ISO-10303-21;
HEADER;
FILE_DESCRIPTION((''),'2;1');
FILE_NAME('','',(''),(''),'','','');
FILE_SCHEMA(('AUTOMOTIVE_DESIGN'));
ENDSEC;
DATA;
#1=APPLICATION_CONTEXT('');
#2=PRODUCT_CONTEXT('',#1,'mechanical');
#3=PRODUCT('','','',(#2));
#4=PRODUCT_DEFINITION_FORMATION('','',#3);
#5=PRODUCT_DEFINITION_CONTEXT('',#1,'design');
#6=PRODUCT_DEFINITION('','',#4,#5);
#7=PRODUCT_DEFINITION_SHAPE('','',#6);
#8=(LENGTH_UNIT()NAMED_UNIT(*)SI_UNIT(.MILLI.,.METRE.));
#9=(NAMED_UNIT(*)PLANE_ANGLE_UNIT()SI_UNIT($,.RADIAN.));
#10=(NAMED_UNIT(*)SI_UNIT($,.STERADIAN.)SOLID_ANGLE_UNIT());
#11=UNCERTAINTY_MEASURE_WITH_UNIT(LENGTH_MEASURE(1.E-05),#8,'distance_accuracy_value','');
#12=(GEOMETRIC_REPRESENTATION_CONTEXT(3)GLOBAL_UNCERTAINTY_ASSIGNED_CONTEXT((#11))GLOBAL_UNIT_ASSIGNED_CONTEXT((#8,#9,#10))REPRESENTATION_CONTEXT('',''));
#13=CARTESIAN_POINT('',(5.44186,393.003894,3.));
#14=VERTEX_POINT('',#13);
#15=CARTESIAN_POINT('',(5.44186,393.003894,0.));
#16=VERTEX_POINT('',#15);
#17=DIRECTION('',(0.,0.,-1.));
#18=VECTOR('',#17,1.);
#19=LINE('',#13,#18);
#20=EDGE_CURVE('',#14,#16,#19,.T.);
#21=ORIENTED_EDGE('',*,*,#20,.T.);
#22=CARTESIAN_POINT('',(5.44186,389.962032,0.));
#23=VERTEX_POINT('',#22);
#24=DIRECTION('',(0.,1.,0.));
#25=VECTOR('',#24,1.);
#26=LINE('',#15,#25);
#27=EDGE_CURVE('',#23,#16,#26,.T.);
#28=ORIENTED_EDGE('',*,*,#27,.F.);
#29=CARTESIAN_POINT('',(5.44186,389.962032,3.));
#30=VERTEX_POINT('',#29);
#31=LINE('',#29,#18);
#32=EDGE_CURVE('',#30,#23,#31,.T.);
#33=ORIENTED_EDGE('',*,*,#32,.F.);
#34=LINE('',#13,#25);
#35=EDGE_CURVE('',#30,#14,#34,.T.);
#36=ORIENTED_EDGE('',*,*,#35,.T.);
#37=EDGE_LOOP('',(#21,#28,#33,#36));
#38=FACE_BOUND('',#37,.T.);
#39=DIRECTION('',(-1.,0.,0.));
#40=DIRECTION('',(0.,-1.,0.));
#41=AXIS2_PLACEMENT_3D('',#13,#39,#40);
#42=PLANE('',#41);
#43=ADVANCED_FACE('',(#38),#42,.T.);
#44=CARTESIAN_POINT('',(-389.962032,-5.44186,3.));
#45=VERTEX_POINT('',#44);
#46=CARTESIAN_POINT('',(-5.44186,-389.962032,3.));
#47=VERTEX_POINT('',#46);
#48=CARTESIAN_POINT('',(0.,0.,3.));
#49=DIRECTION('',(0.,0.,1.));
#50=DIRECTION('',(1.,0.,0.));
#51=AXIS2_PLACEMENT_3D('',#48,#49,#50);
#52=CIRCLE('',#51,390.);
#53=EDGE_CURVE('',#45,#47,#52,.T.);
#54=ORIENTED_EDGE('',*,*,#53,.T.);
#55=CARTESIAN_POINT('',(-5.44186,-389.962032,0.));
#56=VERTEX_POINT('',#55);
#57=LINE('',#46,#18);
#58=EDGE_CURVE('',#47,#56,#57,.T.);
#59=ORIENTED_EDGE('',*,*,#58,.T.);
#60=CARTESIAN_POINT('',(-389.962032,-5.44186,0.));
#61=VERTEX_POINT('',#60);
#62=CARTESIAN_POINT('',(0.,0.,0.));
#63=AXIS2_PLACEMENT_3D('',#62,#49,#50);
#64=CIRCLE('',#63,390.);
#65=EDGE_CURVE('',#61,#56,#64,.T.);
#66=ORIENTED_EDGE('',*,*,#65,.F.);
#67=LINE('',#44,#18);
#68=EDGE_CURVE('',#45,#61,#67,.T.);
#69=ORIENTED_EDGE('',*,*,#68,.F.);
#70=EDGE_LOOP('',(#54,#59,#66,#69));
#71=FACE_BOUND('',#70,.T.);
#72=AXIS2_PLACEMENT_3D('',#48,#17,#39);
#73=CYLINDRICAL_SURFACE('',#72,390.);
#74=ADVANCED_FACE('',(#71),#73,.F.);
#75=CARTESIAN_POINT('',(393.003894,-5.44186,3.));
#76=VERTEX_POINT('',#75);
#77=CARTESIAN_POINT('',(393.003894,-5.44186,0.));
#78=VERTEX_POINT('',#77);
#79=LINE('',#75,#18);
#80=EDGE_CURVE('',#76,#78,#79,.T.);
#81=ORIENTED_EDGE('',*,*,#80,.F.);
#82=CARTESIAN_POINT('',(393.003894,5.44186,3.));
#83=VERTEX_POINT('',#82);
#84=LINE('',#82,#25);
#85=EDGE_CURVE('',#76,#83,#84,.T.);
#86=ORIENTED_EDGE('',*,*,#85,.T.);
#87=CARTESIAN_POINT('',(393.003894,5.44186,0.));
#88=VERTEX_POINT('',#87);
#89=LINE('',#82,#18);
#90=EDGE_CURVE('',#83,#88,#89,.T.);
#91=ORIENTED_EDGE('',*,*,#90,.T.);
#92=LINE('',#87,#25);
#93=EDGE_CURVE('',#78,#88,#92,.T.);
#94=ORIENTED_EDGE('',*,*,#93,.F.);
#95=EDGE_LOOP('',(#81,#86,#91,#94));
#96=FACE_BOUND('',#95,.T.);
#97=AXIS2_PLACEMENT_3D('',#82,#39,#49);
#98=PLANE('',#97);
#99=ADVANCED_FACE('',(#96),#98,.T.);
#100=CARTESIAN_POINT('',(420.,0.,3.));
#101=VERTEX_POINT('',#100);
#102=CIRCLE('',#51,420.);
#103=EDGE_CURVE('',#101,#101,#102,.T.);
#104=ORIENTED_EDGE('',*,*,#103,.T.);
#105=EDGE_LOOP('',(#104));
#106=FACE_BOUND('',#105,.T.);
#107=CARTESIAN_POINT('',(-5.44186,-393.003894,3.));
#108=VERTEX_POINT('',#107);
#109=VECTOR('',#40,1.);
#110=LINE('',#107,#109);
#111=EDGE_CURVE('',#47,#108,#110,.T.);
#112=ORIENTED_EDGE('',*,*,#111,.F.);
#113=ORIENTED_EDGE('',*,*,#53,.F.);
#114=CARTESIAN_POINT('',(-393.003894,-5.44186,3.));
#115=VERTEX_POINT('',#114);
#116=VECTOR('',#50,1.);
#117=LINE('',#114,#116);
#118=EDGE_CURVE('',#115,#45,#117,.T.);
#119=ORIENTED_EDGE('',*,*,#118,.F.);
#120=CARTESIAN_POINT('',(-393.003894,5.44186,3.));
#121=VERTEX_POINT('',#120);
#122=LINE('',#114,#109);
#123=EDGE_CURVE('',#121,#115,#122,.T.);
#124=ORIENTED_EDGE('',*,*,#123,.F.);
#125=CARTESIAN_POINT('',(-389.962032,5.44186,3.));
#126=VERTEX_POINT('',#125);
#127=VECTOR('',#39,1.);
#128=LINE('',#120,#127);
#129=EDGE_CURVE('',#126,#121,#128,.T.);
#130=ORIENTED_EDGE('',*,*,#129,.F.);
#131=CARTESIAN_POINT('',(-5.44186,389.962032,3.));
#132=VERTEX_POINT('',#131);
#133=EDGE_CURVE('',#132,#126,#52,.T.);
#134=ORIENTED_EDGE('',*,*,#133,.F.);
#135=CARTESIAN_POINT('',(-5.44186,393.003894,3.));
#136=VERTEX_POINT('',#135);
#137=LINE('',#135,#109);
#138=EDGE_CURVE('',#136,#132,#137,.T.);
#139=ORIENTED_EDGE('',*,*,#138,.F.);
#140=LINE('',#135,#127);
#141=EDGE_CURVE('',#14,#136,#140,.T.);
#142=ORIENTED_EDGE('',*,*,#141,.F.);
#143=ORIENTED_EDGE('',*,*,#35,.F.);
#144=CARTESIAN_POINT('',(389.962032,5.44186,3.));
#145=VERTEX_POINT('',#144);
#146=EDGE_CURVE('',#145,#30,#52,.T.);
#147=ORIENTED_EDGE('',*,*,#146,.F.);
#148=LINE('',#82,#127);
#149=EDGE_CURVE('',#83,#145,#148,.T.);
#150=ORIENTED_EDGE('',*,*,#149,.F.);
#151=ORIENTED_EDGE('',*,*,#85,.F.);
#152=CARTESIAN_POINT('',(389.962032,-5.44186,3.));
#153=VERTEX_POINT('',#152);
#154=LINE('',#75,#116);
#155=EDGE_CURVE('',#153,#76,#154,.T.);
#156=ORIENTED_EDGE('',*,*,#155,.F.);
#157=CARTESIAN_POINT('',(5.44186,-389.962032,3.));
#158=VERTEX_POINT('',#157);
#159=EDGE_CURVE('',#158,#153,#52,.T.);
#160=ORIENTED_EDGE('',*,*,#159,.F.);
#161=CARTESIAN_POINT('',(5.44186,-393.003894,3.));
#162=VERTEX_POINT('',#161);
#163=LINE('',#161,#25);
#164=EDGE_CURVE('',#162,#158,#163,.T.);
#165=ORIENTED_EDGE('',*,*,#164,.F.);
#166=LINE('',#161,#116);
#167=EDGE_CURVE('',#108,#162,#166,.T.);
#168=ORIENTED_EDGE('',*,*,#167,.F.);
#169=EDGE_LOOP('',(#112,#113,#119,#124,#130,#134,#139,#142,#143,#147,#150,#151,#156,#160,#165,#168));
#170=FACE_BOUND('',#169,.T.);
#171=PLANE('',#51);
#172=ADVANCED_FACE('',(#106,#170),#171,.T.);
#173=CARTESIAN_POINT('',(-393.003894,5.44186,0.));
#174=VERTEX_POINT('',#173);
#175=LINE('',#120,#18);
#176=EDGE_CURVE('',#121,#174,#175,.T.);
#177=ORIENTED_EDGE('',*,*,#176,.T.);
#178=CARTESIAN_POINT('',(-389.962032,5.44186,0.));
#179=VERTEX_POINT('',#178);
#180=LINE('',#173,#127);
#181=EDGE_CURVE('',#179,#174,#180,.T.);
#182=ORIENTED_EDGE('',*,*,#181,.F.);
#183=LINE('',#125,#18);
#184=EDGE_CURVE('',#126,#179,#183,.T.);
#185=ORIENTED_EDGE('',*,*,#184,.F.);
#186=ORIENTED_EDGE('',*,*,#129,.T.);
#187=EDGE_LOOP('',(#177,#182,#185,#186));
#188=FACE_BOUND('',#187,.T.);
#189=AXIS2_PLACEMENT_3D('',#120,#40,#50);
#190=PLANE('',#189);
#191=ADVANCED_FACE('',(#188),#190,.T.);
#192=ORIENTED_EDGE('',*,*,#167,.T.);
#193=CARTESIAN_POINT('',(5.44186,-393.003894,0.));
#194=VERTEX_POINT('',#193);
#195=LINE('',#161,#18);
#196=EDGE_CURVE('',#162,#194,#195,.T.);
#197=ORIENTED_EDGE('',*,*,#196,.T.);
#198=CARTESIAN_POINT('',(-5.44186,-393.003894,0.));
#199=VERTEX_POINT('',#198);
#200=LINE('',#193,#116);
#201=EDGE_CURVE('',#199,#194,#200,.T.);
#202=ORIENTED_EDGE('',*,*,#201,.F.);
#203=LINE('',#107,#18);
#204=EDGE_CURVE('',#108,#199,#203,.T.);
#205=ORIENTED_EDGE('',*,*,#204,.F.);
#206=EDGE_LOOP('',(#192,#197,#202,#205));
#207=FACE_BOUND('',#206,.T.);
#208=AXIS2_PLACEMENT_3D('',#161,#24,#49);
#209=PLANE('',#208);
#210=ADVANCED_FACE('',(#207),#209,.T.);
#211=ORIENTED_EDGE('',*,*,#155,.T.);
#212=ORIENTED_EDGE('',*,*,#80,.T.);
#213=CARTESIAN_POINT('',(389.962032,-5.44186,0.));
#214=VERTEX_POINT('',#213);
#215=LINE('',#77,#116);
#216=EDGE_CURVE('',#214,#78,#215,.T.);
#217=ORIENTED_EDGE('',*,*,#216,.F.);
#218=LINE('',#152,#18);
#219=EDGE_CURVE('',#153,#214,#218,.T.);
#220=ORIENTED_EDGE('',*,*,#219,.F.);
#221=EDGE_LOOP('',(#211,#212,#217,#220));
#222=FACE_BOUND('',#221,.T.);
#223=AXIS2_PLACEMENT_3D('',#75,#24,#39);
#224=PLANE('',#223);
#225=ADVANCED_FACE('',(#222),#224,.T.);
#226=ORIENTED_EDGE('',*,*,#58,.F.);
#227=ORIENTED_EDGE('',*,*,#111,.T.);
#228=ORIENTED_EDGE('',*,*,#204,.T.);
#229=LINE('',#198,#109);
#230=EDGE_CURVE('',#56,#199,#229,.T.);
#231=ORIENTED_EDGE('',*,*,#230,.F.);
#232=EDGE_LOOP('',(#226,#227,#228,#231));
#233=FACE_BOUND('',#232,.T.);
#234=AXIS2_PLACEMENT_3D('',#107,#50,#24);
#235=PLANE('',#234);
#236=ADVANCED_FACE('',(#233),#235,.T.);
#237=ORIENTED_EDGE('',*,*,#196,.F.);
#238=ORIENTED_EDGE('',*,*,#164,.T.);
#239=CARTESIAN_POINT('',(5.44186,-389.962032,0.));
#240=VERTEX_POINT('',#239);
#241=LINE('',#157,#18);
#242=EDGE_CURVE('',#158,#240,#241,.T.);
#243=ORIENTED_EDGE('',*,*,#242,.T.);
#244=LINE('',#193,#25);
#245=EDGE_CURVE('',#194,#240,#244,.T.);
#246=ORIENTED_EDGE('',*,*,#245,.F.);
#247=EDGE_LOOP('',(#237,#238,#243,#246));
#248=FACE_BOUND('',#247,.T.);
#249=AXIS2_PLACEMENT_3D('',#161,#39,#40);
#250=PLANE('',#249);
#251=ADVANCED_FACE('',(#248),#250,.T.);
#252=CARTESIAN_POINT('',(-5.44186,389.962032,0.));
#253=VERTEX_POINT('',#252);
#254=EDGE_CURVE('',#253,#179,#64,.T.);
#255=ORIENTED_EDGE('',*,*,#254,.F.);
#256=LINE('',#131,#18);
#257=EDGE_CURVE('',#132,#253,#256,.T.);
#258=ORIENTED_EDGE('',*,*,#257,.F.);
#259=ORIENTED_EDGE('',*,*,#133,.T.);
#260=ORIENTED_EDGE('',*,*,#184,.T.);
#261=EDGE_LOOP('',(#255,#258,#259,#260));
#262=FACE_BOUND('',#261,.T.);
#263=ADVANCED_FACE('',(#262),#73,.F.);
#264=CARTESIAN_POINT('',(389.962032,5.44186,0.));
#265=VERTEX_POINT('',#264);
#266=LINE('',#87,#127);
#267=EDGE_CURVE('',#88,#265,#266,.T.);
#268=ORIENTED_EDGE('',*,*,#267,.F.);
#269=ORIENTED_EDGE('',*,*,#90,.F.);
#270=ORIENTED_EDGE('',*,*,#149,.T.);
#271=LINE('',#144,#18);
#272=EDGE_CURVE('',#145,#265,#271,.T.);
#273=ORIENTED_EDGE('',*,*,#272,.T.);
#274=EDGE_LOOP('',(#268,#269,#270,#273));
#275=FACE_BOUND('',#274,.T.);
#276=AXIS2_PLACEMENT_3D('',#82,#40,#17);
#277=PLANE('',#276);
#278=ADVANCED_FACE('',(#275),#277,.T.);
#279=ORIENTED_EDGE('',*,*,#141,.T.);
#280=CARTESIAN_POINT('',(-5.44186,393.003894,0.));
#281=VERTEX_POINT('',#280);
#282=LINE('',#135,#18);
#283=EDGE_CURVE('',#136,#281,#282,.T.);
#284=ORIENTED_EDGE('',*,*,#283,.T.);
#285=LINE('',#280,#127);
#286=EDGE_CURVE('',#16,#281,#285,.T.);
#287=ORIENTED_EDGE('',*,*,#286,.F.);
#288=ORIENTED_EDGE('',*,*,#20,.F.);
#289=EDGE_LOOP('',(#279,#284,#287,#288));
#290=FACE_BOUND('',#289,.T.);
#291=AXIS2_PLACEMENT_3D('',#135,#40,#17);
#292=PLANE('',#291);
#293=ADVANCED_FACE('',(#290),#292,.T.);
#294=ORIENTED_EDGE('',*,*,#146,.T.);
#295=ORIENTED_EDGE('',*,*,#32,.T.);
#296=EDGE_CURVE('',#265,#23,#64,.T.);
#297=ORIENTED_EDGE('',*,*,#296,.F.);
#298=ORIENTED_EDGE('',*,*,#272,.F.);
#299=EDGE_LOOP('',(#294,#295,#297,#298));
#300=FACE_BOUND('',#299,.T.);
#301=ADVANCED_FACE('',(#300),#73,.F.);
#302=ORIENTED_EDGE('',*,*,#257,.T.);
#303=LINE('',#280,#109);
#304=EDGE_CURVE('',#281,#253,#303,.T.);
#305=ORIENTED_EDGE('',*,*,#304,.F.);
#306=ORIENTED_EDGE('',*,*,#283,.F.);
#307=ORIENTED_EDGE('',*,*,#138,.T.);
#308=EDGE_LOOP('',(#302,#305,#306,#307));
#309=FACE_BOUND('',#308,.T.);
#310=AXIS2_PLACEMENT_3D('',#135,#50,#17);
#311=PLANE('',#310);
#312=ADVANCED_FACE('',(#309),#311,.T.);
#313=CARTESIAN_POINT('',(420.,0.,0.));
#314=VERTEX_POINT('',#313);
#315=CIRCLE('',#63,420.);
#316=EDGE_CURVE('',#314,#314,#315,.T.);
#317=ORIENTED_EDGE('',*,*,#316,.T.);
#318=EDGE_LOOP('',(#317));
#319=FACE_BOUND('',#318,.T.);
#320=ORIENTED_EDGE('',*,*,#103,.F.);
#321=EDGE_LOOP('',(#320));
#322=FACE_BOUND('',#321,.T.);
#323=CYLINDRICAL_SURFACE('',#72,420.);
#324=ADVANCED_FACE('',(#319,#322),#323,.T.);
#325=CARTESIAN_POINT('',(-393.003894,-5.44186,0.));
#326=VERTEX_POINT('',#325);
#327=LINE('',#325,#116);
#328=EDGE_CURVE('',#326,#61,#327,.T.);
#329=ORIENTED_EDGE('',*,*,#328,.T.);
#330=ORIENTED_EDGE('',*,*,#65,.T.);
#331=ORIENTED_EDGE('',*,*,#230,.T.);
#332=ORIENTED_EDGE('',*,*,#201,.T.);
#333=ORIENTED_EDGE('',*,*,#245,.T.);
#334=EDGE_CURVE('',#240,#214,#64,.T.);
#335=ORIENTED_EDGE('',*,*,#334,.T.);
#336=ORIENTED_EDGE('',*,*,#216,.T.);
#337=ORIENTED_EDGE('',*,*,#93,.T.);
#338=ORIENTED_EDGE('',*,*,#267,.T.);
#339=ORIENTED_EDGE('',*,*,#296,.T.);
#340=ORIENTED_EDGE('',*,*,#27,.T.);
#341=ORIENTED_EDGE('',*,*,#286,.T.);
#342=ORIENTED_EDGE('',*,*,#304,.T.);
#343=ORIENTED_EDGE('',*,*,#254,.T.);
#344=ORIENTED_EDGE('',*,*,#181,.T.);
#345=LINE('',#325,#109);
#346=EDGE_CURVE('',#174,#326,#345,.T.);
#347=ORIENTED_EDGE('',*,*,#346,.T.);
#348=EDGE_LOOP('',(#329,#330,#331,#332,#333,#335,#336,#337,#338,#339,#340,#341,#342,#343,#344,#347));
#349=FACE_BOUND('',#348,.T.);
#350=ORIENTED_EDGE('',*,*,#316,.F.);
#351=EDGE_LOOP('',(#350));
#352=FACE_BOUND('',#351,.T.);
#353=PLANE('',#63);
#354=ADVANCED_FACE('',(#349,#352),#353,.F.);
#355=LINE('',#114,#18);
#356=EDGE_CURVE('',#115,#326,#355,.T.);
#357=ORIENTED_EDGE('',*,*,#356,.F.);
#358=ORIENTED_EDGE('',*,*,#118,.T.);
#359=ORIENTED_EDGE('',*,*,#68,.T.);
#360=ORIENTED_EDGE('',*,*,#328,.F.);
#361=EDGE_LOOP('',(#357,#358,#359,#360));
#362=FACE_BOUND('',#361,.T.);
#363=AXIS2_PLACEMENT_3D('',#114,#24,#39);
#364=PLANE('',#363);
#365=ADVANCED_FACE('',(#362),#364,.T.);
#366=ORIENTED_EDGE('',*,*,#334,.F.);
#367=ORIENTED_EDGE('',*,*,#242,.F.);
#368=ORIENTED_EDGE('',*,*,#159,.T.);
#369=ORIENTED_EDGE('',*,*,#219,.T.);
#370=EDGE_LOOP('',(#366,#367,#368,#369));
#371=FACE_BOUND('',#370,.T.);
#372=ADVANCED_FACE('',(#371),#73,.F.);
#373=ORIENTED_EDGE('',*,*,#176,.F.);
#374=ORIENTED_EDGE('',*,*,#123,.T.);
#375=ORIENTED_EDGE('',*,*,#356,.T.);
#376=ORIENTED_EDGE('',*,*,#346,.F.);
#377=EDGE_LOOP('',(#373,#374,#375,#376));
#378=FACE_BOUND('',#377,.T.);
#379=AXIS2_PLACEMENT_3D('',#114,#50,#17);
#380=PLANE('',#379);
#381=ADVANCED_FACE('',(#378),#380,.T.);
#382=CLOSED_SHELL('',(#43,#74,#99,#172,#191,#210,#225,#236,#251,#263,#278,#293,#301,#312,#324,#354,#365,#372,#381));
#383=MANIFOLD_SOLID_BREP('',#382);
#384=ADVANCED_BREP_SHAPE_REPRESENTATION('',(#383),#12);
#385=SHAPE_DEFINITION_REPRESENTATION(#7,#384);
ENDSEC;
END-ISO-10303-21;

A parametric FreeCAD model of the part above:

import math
import FreeCAD as App
import Part
import Sketcher

doc = App.newDocument("Part")
params = doc.addObject("Spreadsheet::Sheet", "Params")
for row, (alias, value) in enumerate([
    ("sketch1_diameter", "840 mm"),
    ("sketch1_radius", "390 mm"),
    ("pad1_length", "3 mm"),
], start=1):
    params.set(f"A{row}", alias)
    params.set(f"B{row}", "=" + value)
    params.setAlias(f"B{row}", alias)

body = doc.addObject("PartDesign::Body", "Body")

# Sketch on XY plane
sketch1 = body.newObject("Sketcher::SketchObject", "Sketch")
sketch1.AttachmentSupport = (doc.getObject("XY_Plane"), [""])
sketch1.MapMode = "FlatFace"
sketch1.addGeometry([
    Part.Circle(App.Vector(0, 0, 0), App.Vector(0, 0, 1), 420),  # 0
    Part.LineSegment(App.Vector(390, 5.4, 0), App.Vector(393, 5.4, 0)),  # 1
    Part.LineSegment(App.Vector(393, 5.4, 0), App.Vector(393, -5.4, 0)),  # 2
    Part.LineSegment(App.Vector(393, -5.4, 0), App.Vector(390, -5.4, 0)),  # 3
    Part.ArcOfCircle(Part.Circle(App.Vector(0, 0, 0), App.Vector(0, 0, 1), 390), math.radians(-89), math.radians(-1)),  # 4
    Part.LineSegment(App.Vector(5.4, -390, 0), App.Vector(5.4, -393, 0)),  # 5
    Part.LineSegment(App.Vector(5.4, -393, 0), App.Vector(-5.4, -393, 0)),  # 6
    Part.LineSegment(App.Vector(-5.4, -393, 0), App.Vector(-5.4, -390, 0)),  # 7
    Part.ArcOfCircle(Part.Circle(App.Vector(0, 0, 0), App.Vector(0, 0, 1), 390), math.radians(-179), math.radians(-91)),  # 8
    Part.LineSegment(App.Vector(-390, -5.4, 0), App.Vector(-393, -5.4, 0)),  # 9
    Part.LineSegment(App.Vector(-393, -5.4, 0), App.Vector(-393, 5.4, 0)),  # 10
    Part.LineSegment(App.Vector(-393, 5.4, 0), App.Vector(-390, 5.4, 0)),  # 11
    Part.ArcOfCircle(Part.Circle(App.Vector(0, 0, 0), App.Vector(0, 0, 1), 390), math.radians(91), math.radians(179)),  # 12
    Part.LineSegment(App.Vector(-5.4, 390, 0), App.Vector(-5.4, 393, 0)),  # 13
    Part.LineSegment(App.Vector(-5.4, 393, 0), App.Vector(5.4, 393, 0)),  # 14
    Part.LineSegment(App.Vector(5.4, 393, 0), App.Vector(5.4, 390, 0)),  # 15
    Part.ArcOfCircle(Part.Circle(App.Vector(0, 0, 0), App.Vector(0, 0, 1), 390), math.radians(1), math.radians(89)),  # 16
], False)
sketch1.addConstraint([
    Sketcher.Constraint("Coincident", 1, 2, 2, 1),
    Sketcher.Constraint("Coincident", 2, 2, 3, 1),
    Sketcher.Constraint("Coincident", 3, 2, 4, 2),
    Sketcher.Constraint("Coincident", 4, 1, 5, 1),
    Sketcher.Constraint("Coincident", 5, 2, 6, 1),
    Sketcher.Constraint("Coincident", 6, 2, 7, 1),
    Sketcher.Constraint("Coincident", 7, 2, 8, 2),
    Sketcher.Constraint("Coincident", 8, 1, 9, 1),
    Sketcher.Constraint("Coincident", 9, 2, 10, 1),
    Sketcher.Constraint("Coincident", 10, 2, 11, 1),
    Sketcher.Constraint("Coincident", 11, 2, 12, 2),
    Sketcher.Constraint("Coincident", 12, 1, 13, 1),
    Sketcher.Constraint("Coincident", 13, 2, 14, 1),
    Sketcher.Constraint("Coincident", 14, 2, 15, 1),
    Sketcher.Constraint("Coincident", 15, 2, 16, 2),
    Sketcher.Constraint("Coincident", 16, 1, 1, 1),
    Sketcher.Constraint("Horizontal", 1),
    Sketcher.Constraint("Vertical", 2),
    Sketcher.Constraint("Horizontal", 3),
    Sketcher.Constraint("Vertical", 5),
    Sketcher.Constraint("Horizontal", 6),
    Sketcher.Constraint("Vertical", 7),
    Sketcher.Constraint("Horizontal", 9),
    Sketcher.Constraint("Vertical", 10),
    Sketcher.Constraint("Horizontal", 11),
    Sketcher.Constraint("Vertical", 13),
    Sketcher.Constraint("Horizontal", 14),
    Sketcher.Constraint("Vertical", 15),
    Sketcher.Constraint("Coincident", 0, 3, -1, 1),
    Sketcher.Constraint("Coincident", 4, 3, -1, 1),
    Sketcher.Constraint("Coincident", 8, 3, -1, 1),
    Sketcher.Constraint("Coincident", 12, 3, -1, 1),
    Sketcher.Constraint("Coincident", 16, 3, -1, 1),
    Sketcher.Constraint("Equal", 4, 8),
    Sketcher.Constraint("Equal", 8, 12),
    Sketcher.Constraint("Equal", 12, 16),
    Sketcher.Constraint("Symmetric", 1, 2, 9, 2, -1, 1),
    Sketcher.Constraint("Symmetric", 5, 2, 13, 2, -1, 1),
    Sketcher.Constraint("Horizontal", 1, 2, 10, 2),
    Sketcher.Constraint("Vertical", 5, 2, 14, 2),
    Sketcher.Constraint("Equal", 1, 3),
    Sketcher.Constraint("Equal", 6, 14),
    Sketcher.Constraint("Equal", 14, 2),
    Sketcher.Constraint("Equal", 11, 5),
    Sketcher.Constraint("Diameter", 0, 840.0),
    Sketcher.Constraint("Radius", 4, 390.0),
    Sketcher.Constraint("DistanceX", 6, 2, 6, 1, 10.883721),
    Sketcher.Constraint("DistanceX", 1, 1, 1, 2, 3.041863),
])
sketch1.setExpression("Constraints[44]", "Params.sketch1_diameter")
sketch1.setExpression("Constraints[45]", "Params.sketch1_radius")
pad1 = body.newObject("PartDesign::Pad", "Pad")
pad1.Profile = sketch1
pad1.setExpression("Length", "Params.pad1_length")

doc.recompute()
